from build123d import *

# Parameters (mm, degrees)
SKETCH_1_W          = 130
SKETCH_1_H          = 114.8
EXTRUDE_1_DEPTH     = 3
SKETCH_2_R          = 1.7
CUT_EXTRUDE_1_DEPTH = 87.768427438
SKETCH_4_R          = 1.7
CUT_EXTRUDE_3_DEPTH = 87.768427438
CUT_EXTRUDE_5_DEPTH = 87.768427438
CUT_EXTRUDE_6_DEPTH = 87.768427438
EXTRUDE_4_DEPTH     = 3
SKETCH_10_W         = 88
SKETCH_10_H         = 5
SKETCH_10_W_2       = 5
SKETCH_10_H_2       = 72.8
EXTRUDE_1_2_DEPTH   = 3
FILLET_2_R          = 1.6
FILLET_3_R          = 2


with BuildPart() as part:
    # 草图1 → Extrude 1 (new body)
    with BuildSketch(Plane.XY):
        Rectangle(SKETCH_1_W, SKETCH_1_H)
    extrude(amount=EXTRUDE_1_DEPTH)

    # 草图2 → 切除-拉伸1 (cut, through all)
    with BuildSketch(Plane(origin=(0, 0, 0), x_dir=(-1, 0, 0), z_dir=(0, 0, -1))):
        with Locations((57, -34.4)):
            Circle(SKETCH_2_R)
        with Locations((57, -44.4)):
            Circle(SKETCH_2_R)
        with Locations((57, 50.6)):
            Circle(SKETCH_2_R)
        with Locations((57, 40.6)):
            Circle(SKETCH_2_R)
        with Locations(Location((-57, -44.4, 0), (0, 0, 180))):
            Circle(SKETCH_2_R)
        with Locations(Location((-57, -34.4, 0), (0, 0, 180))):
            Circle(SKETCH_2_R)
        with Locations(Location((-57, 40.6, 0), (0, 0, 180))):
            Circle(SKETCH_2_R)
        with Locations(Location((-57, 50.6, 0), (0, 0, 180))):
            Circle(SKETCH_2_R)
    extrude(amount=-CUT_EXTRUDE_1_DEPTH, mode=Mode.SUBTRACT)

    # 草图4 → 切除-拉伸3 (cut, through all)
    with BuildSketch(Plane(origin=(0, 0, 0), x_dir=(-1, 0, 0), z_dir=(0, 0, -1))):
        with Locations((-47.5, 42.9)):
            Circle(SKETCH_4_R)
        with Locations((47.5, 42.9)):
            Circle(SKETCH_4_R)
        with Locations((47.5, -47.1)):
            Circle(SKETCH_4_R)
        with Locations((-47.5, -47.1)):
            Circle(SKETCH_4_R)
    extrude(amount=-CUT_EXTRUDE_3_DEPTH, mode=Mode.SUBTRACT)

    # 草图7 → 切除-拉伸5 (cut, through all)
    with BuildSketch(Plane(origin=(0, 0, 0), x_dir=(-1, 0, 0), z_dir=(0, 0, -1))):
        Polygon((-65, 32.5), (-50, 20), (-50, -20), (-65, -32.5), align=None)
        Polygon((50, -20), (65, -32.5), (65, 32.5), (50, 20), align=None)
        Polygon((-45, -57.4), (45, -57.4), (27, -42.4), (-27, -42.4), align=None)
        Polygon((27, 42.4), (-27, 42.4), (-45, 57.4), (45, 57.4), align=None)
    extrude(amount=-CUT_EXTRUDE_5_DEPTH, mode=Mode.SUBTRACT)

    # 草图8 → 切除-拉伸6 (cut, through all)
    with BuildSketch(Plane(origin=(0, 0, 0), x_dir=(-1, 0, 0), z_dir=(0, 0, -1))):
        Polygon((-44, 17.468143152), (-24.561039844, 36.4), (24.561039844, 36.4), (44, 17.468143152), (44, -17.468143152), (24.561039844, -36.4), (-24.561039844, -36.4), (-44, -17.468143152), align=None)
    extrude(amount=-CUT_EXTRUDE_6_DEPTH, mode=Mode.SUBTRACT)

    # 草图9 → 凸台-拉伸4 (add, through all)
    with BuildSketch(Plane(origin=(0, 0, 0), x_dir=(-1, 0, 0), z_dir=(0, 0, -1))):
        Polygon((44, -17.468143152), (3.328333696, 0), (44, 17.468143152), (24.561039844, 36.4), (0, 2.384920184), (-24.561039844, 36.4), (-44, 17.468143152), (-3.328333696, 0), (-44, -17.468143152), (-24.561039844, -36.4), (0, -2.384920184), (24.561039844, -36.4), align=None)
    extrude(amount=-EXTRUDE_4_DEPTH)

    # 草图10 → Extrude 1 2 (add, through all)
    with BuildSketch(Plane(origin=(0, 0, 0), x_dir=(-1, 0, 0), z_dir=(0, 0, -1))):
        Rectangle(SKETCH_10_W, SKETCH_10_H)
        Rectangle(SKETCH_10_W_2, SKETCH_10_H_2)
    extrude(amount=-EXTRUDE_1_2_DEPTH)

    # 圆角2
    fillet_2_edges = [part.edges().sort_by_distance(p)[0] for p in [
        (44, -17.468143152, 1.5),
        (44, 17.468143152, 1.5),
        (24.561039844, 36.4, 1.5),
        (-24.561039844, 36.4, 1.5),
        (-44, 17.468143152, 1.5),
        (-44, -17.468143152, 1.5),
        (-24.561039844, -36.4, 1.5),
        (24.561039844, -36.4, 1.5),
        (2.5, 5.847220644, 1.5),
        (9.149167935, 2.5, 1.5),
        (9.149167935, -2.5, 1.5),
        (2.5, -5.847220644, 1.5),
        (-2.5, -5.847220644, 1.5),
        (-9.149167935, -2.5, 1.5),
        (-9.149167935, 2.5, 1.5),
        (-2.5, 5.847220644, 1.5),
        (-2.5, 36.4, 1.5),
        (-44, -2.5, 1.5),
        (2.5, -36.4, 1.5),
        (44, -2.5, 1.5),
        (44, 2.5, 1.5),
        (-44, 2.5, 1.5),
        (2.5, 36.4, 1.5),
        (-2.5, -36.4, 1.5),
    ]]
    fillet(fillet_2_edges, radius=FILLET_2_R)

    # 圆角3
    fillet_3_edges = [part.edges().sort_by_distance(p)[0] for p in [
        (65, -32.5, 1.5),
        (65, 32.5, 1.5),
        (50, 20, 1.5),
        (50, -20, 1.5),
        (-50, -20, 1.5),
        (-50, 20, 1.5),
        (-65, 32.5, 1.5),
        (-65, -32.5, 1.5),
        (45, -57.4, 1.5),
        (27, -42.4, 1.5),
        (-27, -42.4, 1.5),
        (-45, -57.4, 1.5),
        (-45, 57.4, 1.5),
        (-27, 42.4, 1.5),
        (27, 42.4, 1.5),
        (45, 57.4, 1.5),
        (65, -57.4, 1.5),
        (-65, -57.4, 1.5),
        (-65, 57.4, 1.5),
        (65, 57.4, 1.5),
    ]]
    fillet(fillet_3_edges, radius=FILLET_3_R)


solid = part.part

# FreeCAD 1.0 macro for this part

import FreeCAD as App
import Part
import Sketcher


def edges_at(feature, points):
    """Names of the edges that pass closest to the given points."""
    edges = feature.Shape.Edges
    near = lambda p: min(range(len(edges)), key=lambda i: edges[i].distToShape(Part.Vertex(*p))[0])
    return sorted({f"Edge{near(p) + 1}" for p in points})


def add_polygon(sketch, points):
    """Adds a closed chain of lines whose ends are joined by coincident constraints."""
    first, n = sketch.GeometryCount, len(points)
    for a, b in zip(points, points[1:] + points[:1]):
        sketch.addGeometry(Part.LineSegment(App.Vector(*a, 0), App.Vector(*b, 0)), False)
    for i in range(n):
        sketch.addConstraint(Sketcher.Constraint("Coincident", first + i, 2, first + (i + 1) % n, 1))

doc = App.newDocument("Part")
body = doc.addObject("PartDesign::Body", "Body")

sketch1 = body.newObject("Sketcher::SketchObject", "Sketch")
sketch1.AttachmentSupport = (doc.getObject("XY_Plane"), [""])
sketch1.MapMode = "FlatFace"
add_polygon(sketch1, [(-65, 57), (-65, -57), (65, -57), (65, 57)])
sketch1.addConstraint([
    Sketcher.Constraint("Vertical", 0),
    Sketcher.Constraint("Horizontal", 1),
    Sketcher.Constraint("Vertical", 2),
    Sketcher.Constraint("Horizontal", 3),
    Sketcher.Constraint("Symmetric", 0, 2, 2, 2, -1, 1),
    Sketcher.Constraint("DistanceX", 1, 1, 1, 2, 130.0),
    Sketcher.Constraint("DistanceY", 0, 2, 0, 1, 114.8),
])
pad1 = body.newObject("PartDesign::Pad", "Pad")
pad1.Profile = sketch1
pad1.Length = 3

sketch2 = body.newObject("Sketcher::SketchObject", "Sketch001")
sketch2.AttachmentSupport = (doc.getObject("XY_Plane"), [""])
sketch2.MapMode = "FlatFace"
sketch2.addGeometry([
    Part.Circle(App.Vector(-57, -34.4, 0), App.Vector(0, 0, 1), 1.7),
    Part.Circle(App.Vector(-57, -44.4, 0), App.Vector(0, 0, 1), 1.7),
    Part.Circle(App.Vector(-57, 50.6, 0), App.Vector(0, 0, 1), 1.7),
    Part.Circle(App.Vector(-57, 40.6, 0), App.Vector(0, 0, 1), 1.7),
    Part.Circle(App.Vector(57, -44.4, 0), App.Vector(0, 0, 1), 1.7),
    Part.Circle(App.Vector(57, -34.4, 0), App.Vector(0, 0, 1), 1.7),
    Part.Circle(App.Vector(57, 40.6, 0), App.Vector(0, 0, 1), 1.7),
    Part.Circle(App.Vector(57, 50.6, 0), App.Vector(0, 0, 1), 1.7),
], False)
sketch2.addConstraint([
    Sketcher.Constraint("Equal", 0, 1),
    Sketcher.Constraint("Equal", 1, 2),
    Sketcher.Constraint("Equal", 2, 3),
    Sketcher.Constraint("Equal", 3, 4),
    Sketcher.Constraint("Equal", 4, 5),
    Sketcher.Constraint("Equal", 5, 6),
    Sketcher.Constraint("Equal", 6, 7),
    Sketcher.Constraint("Symmetric", 1, 3, 4, 3, -2),
    Sketcher.Constraint("Symmetric", 0, 3, 5, 3, -2),
    Sketcher.Constraint("Symmetric", 3, 3, 6, 3, -2),
    Sketcher.Constraint("Symmetric", 2, 3, 7, 3, -2),
    Sketcher.Constraint("Vertical", 0, 3, 1, 3),
    Sketcher.Constraint("Vertical", 1, 3, 2, 3),
    Sketcher.Constraint("Vertical", 2, 3, 3, 3),
    Sketcher.Constraint("Diameter", 0, 3.4),
    Sketcher.Constraint("DistanceX", 0, 3, -1, 1, 57.0),
    Sketcher.Constraint("DistanceY", 1, 3, 0, 3, 10.0),
    Sketcher.Constraint("DistanceY", 0, 3, 2, 3, 85.0),
    Sketcher.Constraint("DistanceY", 3, 3, 2, 3, 10.0),
    Sketcher.Constraint("DistanceY", 0, 3, -1, 1, 34.4),
])
pocket1 = body.newObject("PartDesign::Pocket", "Pocket")
pocket1.Profile = sketch2
pocket1.Type = "ThroughAll"
pocket1.Reversed = True

sketch3 = body.newObject("Sketcher::SketchObject", "Sketch002")
sketch3.AttachmentSupport = (doc.getObject("XY_Plane"), [""])
sketch3.MapMode = "FlatFace"
sketch3.addGeometry([
    Part.Circle(App.Vector(47.5, 42.9, 0), App.Vector(0, 0, 1), 1.7),
    Part.Circle(App.Vector(-47.5, 42.9, 0), App.Vector(0, 0, 1), 1.7),
    Part.Circle(App.Vector(-47.5, -47.1, 0), App.Vector(0, 0, 1), 1.7),
    Part.Circle(App.Vector(47.5, -47.1, 0), App.Vector(0, 0, 1), 1.7),
], False)
sketch3.addConstraint([
    Sketcher.Constraint("Equal", 0, 1),
    Sketcher.Constraint("Equal", 1, 2),
    Sketcher.Constraint("Equal", 2, 3),
    Sketcher.Constraint("Symmetric", 0, 3, 1, 3, -2),
    Sketcher.Constraint("Symmetric", 2, 3, 3, 3, -2),
    Sketcher.Constraint("Vertical", 1, 3, 2, 3),
    Sketcher.Constraint("Diameter", 0, 3.4),
    Sketcher.Constraint("DistanceX", 1, 3, 0, 3, 95.0),
    Sketcher.Constraint("DistanceY", 2, 3, 1, 3, 90.0),
    Sketcher.Constraint("DistanceY", -1, 1, 0, 3, 42.9),
])
pocket2 = body.newObject("PartDesign::Pocket", "Pocket001")
pocket2.Profile = sketch3
pocket2.Type = "ThroughAll"
pocket2.Reversed = True

sketch4 = body.newObject("Sketcher::SketchObject", "Sketch003")
sketch4.AttachmentSupport = (doc.getObject("XY_Plane"), [""])
sketch4.MapMode = "FlatFace"
add_polygon(sketch4, [(50, 20), (65, 32), (65, -32), (50, -20)])
add_polygon(sketch4, [(-50, -20), (-65, -32), (-65, 32), (-50, 20)])
add_polygon(sketch4, [(45, -57), (-45, -57), (-27, -42), (27, -42)])
add_polygon(sketch4, [(27, 42), (-27, 42), (-45, 57), (45, 57)])
sketch4.addConstraint([
    Sketcher.Constraint("Vertical", 1),
    Sketcher.Constraint("Vertical", 3),
    Sketcher.Constraint("Vertical", 5),
    Sketcher.Constraint("Vertical", 7),
    Sketcher.Constraint("Horizontal", 8),
    Sketcher.Constraint("Horizontal", 10),
    Sketcher.Constraint("Horizontal", 12),
    Sketcher.Constraint("Horizontal", 14),
    Sketcher.Constraint("Symmetric", 0, 2, 4, 2, -1, 1),
    Sketcher.Constraint("Symmetric", 2, 2, 6, 2, -1, 1),
    Sketcher.Constraint("Symmetric", 10, 2, 12, 2, -1, 1),
    Sketcher.Constraint("Symmetric", 11, 2, 13, 2, -1, 1),
    Sketcher.Constraint("Parallel", 0, 4),
    Sketcher.Constraint("Parallel", 2, 6),
    Sketcher.Constraint("Parallel", 4, 9),
    Sketcher.Constraint("Parallel", 6, 11),
    Sketcher.Constraint("Parallel", 9, 15),
    Sketcher.Constraint("Horizontal", 1, 2, 4, 2),
    Sketcher.Constraint("Horizontal", 3, 2, 6, 2),
    Sketcher.Constraint("Vertical", 9, 2, 12, 2),
    Sketcher.Constraint("Vertical", 11, 2, 14, 2),
    Sketcher.Constraint("DistanceX", 8, 2, 8, 1, 90.0),
    Sketcher.Constraint("DistanceX", 10, 1, 10, 2, 54.0),
    Sketcher.Constraint("DistanceY", 1, 2, 1, 1, 65.0),
    Sketcher.Constraint("DistanceY", 3, 1, 3, 2, 40.0),
    Sketcher.Constraint("DistanceX", -1, 1, 0, 2, 65.0),
    Sketcher.Constraint("DistanceX", -1, 1, 2, 2, 50.0),
    Sketcher.Constraint("DistanceY", 8, 2, -1, 1, 57.4),
])
pocket3 = body.newObject("PartDesign::Pocket", "Pocket002")
pocket3.Profile = sketch4
pocket3.Type = "ThroughAll"
pocket3.Reversed = True

sketch5 = body.newObject("Sketcher::SketchObject", "Sketch004")
sketch5.AttachmentSupport = (doc.getObject("XY_Plane"), [""])
sketch5.MapMode = "FlatFace"
add_polygon(sketch5, [(25, 36), (44, 17), (44, -17), (25, -36), (-25, -36), (-44, -17), (-44, 17), (-25, 36)])
sketch5.addConstraint([
    Sketcher.Constraint("Vertical", 1),
    Sketcher.Constraint("Horizontal", 3),
    Sketcher.Constraint("Vertical", 5),
    Sketcher.Constraint("Horizontal", 7),
    Sketcher.Constraint("Symmetric", 0, 2, 4, 2, -1, 1),
    Sketcher.Constraint("Symmetric", 2, 2, 6, 2, -1, 1),
    Sketcher.Constraint("Parallel", 0, 4),
    Sketcher.Constraint("Parallel", 2, 6),
    Sketcher.Constraint("Horizontal", 1, 2, 4, 2),
    Sketcher.Constraint("Vertical", 3, 2, 6, 2),
    Sketcher.Constraint("DistanceX", -1, 1, 0, 2, 44.0),
    Sketcher.Constraint("DistanceY", 2, 2, -1, 1, 36.4),
    Sketcher.Constraint("DistanceX", 3, 2, 3, 1, 49.12208),
    Sketcher.Constraint("DistanceY", 1, 2, 1, 1, 34.936286),
])
pocket4 = body.newObject("PartDesign::Pocket", "Pocket003")
pocket4.Profile = sketch5
pocket4.Type = "ThroughAll"
pocket4.Reversed = True

sketch6 = body.newObject("Sketcher::SketchObject", "Sketch005")
sketch6.AttachmentSupport = (doc.getObject("XY_Plane"), [""])
sketch6.MapMode = "FlatFace"
add_polygon(sketch6, [(-44, -17), (-3, 0), (-44, 17), (-25, 36), (0, 2), (25, 36), (44, 17), (3, 0), (44, -17), (25, -36), (0, -2), (-25, -36)])
sketch6.addConstraint([
    Sketcher.Constraint("Symmetric", 0, 2, 6, 2, -1, 1),
    Sketcher.Constraint("Symmetric", 1, 2, 7, 2, -1, 1),
    Sketcher.Constraint("Symmetric", 2, 2, 8, 2, -1, 1),
    Sketcher.Constraint("Symmetric", 3, 2, 9, 2, -1, 1),
    Sketcher.Constraint("Symmetric", 4, 2, 10, 2, -1, 1),
    Sketcher.Constraint("Symmetric", 5, 2, 11, 2, -1, 1),
    Sketcher.Constraint("Symmetric", 2, 2, 4, 2, -2),
    Sketcher.Constraint("Symmetric", 1, 2, 5, 2, -2),
    Sketcher.Constraint("PointOnObject", 0, 2, -1),
    Sketcher.Constraint("PointOnObject", 3, 2, -2),
    Sketcher.Constraint("DistanceX", 1, 2, -1, 1, 44.0),
    Sketcher.Constraint("DistanceY", -1, 1, 2, 2, 36.4),
    Sketcher.Constraint("DistanceX", 2, 2, -1, 1, 24.56104),
    Sketcher.Constraint("DistanceY", -1, 1, 3, 2, 2.38492),
    Sketcher.Constraint("Distance", 0, 44.264212),
    Sketcher.Constraint("Distance", 2, 27.134634),
])
pad2 = body.newObject("PartDesign::Pad", "Pad001")
pad2.Profile = sketch6
pad2.Length = 3

sketch7 = body.newObject("Sketcher::SketchObject", "Sketch006")
sketch7.AttachmentSupport = (doc.getObject("XY_Plane"), [""])
sketch7.MapMode = "FlatFace"
add_polygon(sketch7, [(44, 2), (44, -2), (2, -2), (2, -36), (-2, -36), (-2, -2), (-44, -2), (-44, 2), (-2, 2), (-2, 36), (2, 36), (2, 2)])
sketch7.addConstraint([
    Sketcher.Constraint("Vertical", 0),
    Sketcher.Constraint("Horizontal", 1),
    Sketcher.Constraint("Vertical", 2),
    Sketcher.Constraint("Horizontal", 3),
    Sketcher.Constraint("Vertical", 4),
    Sketcher.Constraint("Horizontal", 5),
    Sketcher.Constraint("Vertical", 6),
    Sketcher.Constraint("Horizontal", 7),
    Sketcher.Constraint("Vertical", 8),
    Sketcher.Constraint("Horizontal", 9),
    Sketcher.Constraint("Vertical", 10),
    Sketcher.Constraint("Horizontal", 11),
    Sketcher.Constraint("Symmetric", 0, 2, 6, 2, -1, 1),
    Sketcher.Constraint("Symmetric", 2, 2, 8, 2, -1, 1),
    Sketcher.Constraint("Symmetric", 4, 2, 10, 2, -1, 1),
    Sketcher.Constraint("Symmetric", 1, 2, 4, 2, -2),
    Sketcher.Constraint("Equal", 9, 0),
    Sketcher.Constraint("DistanceX", 3, 2, 3, 1, 5.0),
    Sketcher.Constraint("DistanceX", 1, 2, 1, 1, 41.5),
    Sketcher.Constraint("DistanceY", 2, 2, 2, 1, 33.9),
])
pad3 = body.newObject("PartDesign::Pad", "Pad002")
pad3.Profile = sketch7
pad3.Type = "UpToLast"
doc.recompute()

fillet = body.newObject("PartDesign::Fillet", "Fillet")
fillet.Base = (pad3, edges_at(pad3, [
    (44, -17.468, 1.5),
    (44, 17.468, 1.5),
    (24.561, 36.4, 1.5),
    (-24.561, 36.4, 1.5),
    (-44, 17.468, 1.5),
    (-44, -17.468, 1.5),
    (-24.561, -36.4, 1.5),
    (24.561, -36.4, 1.5),
    (2.5, 5.847, 1.5),
    (9.149, 2.5, 1.5),
    (9.149, -2.5, 1.5),
    (2.5, -5.847, 1.5),
    (-2.5, -5.847, 1.5),
    (-9.149, -2.5, 1.5),
    (-9.149, 2.5, 1.5),
    (-2.5, 5.847, 1.5),
    (-2.5, 36.4, 1.5),
    (-44, -2.5, 1.5),
    (2.5, -36.4, 1.5),
    (44, -2.5, 1.5),
    (44, 2.5, 1.5),
    (-44, 2.5, 1.5),
    (2.5, 36.4, 1.5),
    (-2.5, -36.4, 1.5),
]))
fillet.Radius = 1.6
doc.recompute()

fillet2 = body.newObject("PartDesign::Fillet", "Fillet001")
fillet2.Base = (fillet, edges_at(fillet, [
    (65, -32.5, 1.5),
    (65, 32.5, 1.5),
    (50, 20, 1.5),
    (50, -20, 1.5),
    (-50, -20, 1.5),
    (-50, 20, 1.5),
    (-65, 32.5, 1.5),
    (-65, -32.5, 1.5),
    (45, -57.4, 1.5),
    (27, -42.4, 1.5),
    (-27, -42.4, 1.5),
    (-45, -57.4, 1.5),
    (-45, 57.4, 1.5),
    (-27, 42.4, 1.5),
    (27, 42.4, 1.5),
    (45, 57.4, 1.5),
    (65, -57.4, 1.5),
    (-65, -57.4, 1.5),
    (-65, 57.4, 1.5),
    (65, 57.4, 1.5),
]))
fillet2.Radius = 2

doc.recompute()
